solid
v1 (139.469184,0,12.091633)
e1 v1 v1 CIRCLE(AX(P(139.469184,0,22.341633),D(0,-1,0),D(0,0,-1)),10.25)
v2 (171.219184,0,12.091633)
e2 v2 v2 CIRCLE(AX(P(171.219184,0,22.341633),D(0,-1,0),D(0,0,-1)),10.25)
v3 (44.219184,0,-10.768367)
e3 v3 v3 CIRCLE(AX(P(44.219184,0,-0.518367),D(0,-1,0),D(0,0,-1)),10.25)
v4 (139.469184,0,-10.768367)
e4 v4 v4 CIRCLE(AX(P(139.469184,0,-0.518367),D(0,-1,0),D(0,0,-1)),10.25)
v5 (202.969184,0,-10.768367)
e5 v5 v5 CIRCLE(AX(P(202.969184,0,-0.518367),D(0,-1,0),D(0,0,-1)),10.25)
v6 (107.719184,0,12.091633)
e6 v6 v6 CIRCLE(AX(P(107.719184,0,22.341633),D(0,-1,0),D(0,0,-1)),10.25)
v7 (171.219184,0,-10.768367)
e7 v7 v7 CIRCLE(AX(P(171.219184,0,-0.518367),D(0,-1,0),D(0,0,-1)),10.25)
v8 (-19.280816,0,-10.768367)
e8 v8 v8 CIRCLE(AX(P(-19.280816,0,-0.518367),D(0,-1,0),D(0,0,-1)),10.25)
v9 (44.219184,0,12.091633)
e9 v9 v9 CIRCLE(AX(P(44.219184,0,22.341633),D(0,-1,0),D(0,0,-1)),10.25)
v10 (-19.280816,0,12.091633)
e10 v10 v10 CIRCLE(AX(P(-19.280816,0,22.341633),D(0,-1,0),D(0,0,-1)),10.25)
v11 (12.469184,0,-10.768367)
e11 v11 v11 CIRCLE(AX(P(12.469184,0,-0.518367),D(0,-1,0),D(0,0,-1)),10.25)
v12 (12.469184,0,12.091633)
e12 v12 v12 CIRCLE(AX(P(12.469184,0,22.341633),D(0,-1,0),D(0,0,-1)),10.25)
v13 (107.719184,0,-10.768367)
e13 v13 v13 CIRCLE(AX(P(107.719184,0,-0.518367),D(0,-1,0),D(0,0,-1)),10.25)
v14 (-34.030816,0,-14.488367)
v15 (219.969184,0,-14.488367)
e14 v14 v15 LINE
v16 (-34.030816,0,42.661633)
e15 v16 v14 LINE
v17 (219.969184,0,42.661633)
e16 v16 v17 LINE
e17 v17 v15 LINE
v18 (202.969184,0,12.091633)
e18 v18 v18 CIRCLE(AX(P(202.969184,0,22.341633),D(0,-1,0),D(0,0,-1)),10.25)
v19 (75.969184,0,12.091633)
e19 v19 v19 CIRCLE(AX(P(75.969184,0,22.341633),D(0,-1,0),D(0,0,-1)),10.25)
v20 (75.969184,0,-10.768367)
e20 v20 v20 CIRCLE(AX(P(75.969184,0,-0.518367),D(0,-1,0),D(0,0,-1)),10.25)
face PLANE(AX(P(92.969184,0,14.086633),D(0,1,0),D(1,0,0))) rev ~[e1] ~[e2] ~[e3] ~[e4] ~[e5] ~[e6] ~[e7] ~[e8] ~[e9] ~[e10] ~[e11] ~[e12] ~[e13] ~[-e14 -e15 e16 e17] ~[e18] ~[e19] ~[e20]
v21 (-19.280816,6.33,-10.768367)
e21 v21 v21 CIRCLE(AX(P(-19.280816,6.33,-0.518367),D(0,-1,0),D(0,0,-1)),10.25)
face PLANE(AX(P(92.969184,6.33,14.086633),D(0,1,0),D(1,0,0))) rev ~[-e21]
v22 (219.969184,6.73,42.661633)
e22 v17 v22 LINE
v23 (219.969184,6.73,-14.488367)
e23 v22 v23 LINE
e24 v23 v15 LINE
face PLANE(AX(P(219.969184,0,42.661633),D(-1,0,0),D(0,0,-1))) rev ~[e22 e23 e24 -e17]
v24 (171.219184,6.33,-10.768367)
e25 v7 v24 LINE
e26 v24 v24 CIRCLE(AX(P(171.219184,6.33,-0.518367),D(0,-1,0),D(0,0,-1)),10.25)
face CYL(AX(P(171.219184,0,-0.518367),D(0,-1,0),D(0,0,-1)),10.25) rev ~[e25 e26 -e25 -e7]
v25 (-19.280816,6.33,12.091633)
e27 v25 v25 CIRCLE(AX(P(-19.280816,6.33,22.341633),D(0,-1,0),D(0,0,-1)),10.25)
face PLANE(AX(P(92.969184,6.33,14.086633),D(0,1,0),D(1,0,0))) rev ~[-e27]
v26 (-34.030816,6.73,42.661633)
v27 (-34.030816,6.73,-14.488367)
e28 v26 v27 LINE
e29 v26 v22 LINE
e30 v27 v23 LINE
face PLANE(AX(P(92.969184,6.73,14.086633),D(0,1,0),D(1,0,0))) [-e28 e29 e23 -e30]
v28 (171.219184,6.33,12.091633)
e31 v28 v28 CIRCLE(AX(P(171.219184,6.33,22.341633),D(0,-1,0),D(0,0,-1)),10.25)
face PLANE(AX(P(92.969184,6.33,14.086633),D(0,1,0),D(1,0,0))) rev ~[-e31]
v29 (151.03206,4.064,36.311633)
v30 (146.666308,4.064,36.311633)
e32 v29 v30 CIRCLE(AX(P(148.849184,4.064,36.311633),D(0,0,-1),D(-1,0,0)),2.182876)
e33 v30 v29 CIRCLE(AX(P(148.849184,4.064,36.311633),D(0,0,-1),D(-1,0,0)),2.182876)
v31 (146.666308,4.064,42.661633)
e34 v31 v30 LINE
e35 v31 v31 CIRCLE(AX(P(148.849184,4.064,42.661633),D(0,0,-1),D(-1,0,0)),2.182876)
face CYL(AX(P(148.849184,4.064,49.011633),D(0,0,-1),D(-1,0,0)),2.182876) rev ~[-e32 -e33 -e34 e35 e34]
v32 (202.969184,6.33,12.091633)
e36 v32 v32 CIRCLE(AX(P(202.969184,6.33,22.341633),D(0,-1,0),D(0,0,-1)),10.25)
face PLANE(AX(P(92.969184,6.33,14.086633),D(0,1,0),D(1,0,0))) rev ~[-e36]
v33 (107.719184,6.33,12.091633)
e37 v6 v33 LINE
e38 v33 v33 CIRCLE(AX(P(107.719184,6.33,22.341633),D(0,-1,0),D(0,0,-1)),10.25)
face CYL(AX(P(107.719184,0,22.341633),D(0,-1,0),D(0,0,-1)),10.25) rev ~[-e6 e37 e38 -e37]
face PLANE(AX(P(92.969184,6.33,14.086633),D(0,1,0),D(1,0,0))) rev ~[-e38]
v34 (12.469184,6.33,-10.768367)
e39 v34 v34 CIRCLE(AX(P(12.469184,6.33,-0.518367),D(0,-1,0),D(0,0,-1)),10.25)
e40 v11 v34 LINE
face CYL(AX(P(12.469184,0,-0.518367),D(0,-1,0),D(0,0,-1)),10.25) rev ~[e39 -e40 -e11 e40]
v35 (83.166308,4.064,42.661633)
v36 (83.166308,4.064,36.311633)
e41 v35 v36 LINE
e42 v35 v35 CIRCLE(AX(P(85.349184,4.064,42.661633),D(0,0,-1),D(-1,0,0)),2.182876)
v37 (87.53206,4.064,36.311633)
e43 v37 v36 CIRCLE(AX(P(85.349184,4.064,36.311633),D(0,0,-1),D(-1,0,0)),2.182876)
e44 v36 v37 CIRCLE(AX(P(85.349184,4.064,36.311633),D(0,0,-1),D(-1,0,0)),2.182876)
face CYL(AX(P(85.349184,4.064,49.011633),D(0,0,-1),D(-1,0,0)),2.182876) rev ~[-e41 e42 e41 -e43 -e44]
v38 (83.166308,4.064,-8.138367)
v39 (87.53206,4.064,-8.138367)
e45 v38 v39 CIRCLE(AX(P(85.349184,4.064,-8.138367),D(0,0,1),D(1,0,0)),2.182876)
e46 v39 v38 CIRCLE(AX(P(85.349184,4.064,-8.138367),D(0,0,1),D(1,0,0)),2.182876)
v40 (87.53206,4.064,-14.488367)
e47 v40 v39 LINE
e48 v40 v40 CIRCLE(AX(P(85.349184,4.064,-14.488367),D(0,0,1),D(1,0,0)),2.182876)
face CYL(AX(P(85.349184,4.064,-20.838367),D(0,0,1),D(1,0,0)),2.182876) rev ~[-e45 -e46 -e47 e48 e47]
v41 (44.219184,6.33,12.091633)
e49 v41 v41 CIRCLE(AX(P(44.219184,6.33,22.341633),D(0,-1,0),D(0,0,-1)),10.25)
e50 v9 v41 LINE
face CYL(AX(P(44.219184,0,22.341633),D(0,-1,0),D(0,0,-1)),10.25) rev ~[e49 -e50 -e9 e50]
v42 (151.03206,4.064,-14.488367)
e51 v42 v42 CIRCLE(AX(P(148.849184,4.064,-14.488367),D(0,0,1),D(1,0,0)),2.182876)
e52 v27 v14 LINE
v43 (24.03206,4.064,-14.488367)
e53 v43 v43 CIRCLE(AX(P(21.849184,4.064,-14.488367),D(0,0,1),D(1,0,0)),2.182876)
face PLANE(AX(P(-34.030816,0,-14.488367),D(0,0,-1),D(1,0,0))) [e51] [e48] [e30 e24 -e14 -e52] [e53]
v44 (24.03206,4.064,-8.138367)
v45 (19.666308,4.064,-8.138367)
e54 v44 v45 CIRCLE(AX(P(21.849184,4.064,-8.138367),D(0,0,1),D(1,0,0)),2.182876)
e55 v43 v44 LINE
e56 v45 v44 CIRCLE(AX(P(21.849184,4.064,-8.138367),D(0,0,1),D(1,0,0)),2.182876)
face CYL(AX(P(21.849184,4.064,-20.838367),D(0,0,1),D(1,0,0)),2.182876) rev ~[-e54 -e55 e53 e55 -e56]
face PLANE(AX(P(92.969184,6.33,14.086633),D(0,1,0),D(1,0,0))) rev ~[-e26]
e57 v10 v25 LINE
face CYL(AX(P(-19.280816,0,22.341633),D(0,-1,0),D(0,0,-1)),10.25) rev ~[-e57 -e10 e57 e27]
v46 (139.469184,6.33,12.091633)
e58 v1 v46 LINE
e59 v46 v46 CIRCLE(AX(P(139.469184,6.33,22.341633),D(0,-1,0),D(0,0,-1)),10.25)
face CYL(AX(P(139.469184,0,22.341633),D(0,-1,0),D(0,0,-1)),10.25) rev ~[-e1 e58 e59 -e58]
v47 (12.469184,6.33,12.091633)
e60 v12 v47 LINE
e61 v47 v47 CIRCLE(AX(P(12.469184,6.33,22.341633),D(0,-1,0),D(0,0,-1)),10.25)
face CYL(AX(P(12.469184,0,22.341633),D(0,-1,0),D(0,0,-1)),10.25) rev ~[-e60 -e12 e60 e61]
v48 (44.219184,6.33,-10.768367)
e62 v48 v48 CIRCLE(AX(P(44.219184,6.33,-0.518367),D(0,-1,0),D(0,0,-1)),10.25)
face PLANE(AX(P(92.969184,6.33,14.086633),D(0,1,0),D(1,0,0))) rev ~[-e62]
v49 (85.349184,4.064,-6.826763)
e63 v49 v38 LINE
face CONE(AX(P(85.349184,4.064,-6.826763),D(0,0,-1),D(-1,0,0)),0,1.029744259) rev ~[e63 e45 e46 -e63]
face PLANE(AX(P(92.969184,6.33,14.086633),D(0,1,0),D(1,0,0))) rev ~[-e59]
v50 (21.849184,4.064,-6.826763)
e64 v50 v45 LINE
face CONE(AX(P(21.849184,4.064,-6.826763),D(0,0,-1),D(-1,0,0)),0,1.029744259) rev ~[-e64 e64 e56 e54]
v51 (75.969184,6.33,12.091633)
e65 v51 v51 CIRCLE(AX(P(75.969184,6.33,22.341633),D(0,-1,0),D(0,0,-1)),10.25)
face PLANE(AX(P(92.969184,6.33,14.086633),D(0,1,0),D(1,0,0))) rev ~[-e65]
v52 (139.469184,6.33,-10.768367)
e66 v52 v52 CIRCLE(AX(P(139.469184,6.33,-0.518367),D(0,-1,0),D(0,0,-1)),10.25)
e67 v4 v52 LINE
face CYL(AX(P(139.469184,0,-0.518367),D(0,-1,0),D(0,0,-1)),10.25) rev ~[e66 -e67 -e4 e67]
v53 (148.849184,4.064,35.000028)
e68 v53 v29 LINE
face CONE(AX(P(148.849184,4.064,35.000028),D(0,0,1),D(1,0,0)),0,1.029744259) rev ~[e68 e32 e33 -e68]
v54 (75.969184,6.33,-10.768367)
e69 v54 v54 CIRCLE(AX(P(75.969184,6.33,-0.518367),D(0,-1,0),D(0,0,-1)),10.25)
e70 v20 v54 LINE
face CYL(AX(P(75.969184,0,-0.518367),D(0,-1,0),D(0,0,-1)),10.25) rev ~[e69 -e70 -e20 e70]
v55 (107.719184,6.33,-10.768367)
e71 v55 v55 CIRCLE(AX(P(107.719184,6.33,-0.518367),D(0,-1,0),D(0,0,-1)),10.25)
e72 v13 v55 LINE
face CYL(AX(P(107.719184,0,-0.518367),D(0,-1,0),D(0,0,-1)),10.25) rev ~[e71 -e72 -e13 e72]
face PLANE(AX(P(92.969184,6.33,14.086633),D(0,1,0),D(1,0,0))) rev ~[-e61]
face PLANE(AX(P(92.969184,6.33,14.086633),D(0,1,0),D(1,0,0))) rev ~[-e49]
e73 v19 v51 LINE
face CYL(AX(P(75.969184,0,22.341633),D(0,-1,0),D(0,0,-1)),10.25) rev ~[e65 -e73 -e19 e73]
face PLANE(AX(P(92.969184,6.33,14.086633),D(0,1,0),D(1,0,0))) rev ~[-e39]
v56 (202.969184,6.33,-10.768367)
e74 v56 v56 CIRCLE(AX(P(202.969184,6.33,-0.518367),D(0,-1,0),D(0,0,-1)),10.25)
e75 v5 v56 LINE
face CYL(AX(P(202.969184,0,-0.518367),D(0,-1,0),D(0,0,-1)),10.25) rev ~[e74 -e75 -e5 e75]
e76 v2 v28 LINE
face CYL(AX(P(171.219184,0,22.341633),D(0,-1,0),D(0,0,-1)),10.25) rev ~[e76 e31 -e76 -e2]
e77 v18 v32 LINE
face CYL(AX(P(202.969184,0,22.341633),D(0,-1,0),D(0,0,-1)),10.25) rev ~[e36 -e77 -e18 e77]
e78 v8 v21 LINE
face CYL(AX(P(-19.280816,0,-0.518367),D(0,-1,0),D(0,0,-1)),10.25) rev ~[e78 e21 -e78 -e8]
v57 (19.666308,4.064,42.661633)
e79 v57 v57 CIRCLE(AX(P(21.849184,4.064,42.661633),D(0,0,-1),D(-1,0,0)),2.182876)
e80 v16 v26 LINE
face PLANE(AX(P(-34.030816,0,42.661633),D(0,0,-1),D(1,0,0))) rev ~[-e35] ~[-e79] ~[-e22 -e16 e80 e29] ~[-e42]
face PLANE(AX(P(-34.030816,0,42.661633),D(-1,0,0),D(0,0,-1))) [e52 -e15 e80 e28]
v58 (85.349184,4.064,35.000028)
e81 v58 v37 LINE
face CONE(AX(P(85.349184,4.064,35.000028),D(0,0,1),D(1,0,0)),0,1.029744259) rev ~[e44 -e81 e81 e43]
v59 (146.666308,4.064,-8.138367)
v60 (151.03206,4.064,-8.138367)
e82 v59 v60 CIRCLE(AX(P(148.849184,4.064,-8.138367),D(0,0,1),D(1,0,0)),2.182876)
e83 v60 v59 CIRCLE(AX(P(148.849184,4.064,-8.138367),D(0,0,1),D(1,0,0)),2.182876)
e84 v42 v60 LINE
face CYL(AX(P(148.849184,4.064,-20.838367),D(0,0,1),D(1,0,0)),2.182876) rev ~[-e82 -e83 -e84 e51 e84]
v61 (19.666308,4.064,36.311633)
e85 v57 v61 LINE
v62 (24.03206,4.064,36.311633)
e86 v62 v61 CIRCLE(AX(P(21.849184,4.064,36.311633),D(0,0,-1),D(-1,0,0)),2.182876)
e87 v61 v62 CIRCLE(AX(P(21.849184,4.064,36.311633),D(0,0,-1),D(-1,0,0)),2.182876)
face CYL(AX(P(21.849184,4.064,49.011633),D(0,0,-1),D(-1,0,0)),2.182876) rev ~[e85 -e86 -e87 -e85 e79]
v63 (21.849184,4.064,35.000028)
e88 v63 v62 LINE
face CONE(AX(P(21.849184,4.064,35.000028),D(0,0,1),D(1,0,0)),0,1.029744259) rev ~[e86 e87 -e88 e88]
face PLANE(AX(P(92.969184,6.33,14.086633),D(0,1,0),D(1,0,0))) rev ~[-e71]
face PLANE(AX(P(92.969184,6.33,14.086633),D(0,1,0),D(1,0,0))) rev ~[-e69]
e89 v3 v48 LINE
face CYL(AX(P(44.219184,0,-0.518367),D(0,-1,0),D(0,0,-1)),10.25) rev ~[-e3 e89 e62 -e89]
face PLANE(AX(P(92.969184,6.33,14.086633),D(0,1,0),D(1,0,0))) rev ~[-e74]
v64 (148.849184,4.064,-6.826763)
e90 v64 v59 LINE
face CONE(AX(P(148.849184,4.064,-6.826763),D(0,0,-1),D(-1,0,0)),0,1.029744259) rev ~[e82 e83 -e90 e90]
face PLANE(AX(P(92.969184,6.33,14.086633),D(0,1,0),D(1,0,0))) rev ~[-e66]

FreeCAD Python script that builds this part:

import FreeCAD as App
import Part
import Sketcher

doc = App.newDocument("Part")
body = doc.addObject("PartDesign::Body", "Body")

sketch1 = body.newObject("Sketcher::SketchObject", "Sketch")
sketch1.AttachmentSupport = (doc.getObject("XZ_Plane"), [""])
sketch1.MapMode = "FlatFace"
sketch1.addGeometry([
    Part.LineSegment(App.Vector(-34, -14, 0), App.Vector(-34, 43, 0)),
    Part.LineSegment(App.Vector(-34, 43, 0), App.Vector(220, 43, 0)),
    Part.LineSegment(App.Vector(220, 43, 0), App.Vector(220, -14, 0)),
    Part.LineSegment(App.Vector(220, -14, 0), App.Vector(-34, -14, 0)),
    Part.Circle(App.Vector(-19, 22, 0), App.Vector(0, 0, 1), 10),
    Part.Circle(App.Vector(12, 22, 0), App.Vector(0, 0, 1), 10),
    Part.Circle(App.Vector(44, 22, 0), App.Vector(0, 0, 1), 10),
    Part.Circle(App.Vector(76, 22, 0), App.Vector(0, 0, 1), 10),
    Part.Circle(App.Vector(108, 22, 0), App.Vector(0, 0, 1), 10),
    Part.Circle(App.Vector(139, 22, 0), App.Vector(0, 0, 1), 10),
    Part.Circle(App.Vector(171, 22, 0), App.Vector(0, 0, 1), 10),
    Part.Circle(App.Vector(203, 22, 0), App.Vector(0, 0, 1), 10),
    Part.Circle(App.Vector(-19, -1, 0), App.Vector(0, 0, 1), 10),
    Part.Circle(App.Vector(12, -1, 0), App.Vector(0, 0, 1), 10),
    Part.Circle(App.Vector(44, -1, 0), App.Vector(0, 0, 1), 10),
    Part.Circle(App.Vector(76, -1, 0), App.Vector(0, 0, 1), 10),
    Part.Circle(App.Vector(108, -1, 0), App.Vector(0, 0, 1), 10),
    Part.Circle(App.Vector(139, -1, 0), App.Vector(0, 0, 1), 10),
    Part.Circle(App.Vector(171, -1, 0), App.Vector(0, 0, 1), 10),
    Part.Circle(App.Vector(203, -1, 0), App.Vector(0, 0, 1), 10),
], False)
sketch1.addConstraint([
    Sketcher.Constraint("Coincident", 0, 2, 1, 1),
    Sketcher.Constraint("Coincident", 1, 2, 2, 1),
    Sketcher.Constraint("Coincident", 2, 2, 3, 1),
    Sketcher.Constraint("Coincident", 3, 2, 0, 1),
    Sketcher.Constraint("Vertical", 0),
    Sketcher.Constraint("Horizontal", 1),
    Sketcher.Constraint("Vertical", 2),
    Sketcher.Constraint("Horizontal", 3),
    Sketcher.Constraint("Equal", 4, 5),
    Sketcher.Constraint("Equal", 5, 6),
    Sketcher.Constraint("Equal", 6, 7),
    Sketcher.Constraint("Equal", 7, 8),
    Sketcher.Constraint("Equal", 8, 9),
    Sketcher.Constraint("Equal", 9, 10),
    Sketcher.Constraint("Equal", 10, 11),
    Sketcher.Constraint("Equal", 11, 12),
    Sketcher.Constraint("Equal", 12, 13),
    Sketcher.Constraint("Equal", 13, 14),
    Sketcher.Constraint("Equal", 14, 15),
    Sketcher.Constraint("Equal", 15, 16),
    Sketcher.Constraint("Equal", 16, 17),
    Sketcher.Constraint("Equal", 17, 18),
    Sketcher.Constraint("Equal", 18, 19),
    Sketcher.Constraint("Horizontal", 4, 3, 5, 3),
    Sketcher.Constraint("Horizontal", 5, 3, 6, 3),
    Sketcher.Constraint("Horizontal", 6, 3, 7, 3),
    Sketcher.Constraint("Horizontal", 7, 3, 8, 3),
    Sketcher.Constraint("Horizontal", 8, 3, 9, 3),
    Sketcher.Constraint("Horizontal", 9, 3, 10, 3),
    Sketcher.Constraint("Horizontal", 10, 3, 11, 3),
    Sketcher.Constraint("Horizontal", 12, 3, 13, 3),
    Sketcher.Constraint("Horizontal", 13, 3, 14, 3),
    Sketcher.Constraint("Horizontal", 14, 3, 15, 3),
    Sketcher.Constraint("Horizontal", 15, 3, 16, 3),
    Sketcher.Constraint("Horizontal", 16, 3, 17, 3),
    Sketcher.Constraint("Horizontal", 17, 3, 18, 3),
    Sketcher.Constraint("Horizontal", 18, 3, 19, 3),
    Sketcher.Constraint("Vertical", 4, 3, 12, 3),
    Sketcher.Constraint("Vertical", 5, 3, 13, 3),
    Sketcher.Constraint("Vertical", 6, 3, 14, 3),
    Sketcher.Constraint("Vertical", 7, 3, 15, 3),
    Sketcher.Constraint("Vertical", 8, 3, 16, 3),
    Sketcher.Constraint("Vertical", 9, 3, 17, 3),
    Sketcher.Constraint("Vertical", 10, 3, 18, 3),
    Sketcher.Constraint("Vertical", 11, 3, 19, 3),
    Sketcher.Constraint("Diameter", 4, 20.0),
    Sketcher.Constraint("DistanceX", 1, 1, 1, 2, 254.0),
    Sketcher.Constraint("DistanceX", 4, 3, 8, 3, 127.0),
    Sketcher.Constraint("DistanceX", 5, 3, 9, 3, 127.0),
    Sketcher.Constraint("DistanceX", 6, 3, 10, 3, 127.0),
    Sketcher.Constraint("DistanceX", 7, 3, 11, 3, 127.0),
    Sketcher.Constraint("DistanceX", 11, 3, 1, 2, 17.0),
    Sketcher.Constraint("DistanceY", 0, 1, 0, 2, 57.15),
    Sketcher.Constraint("DistanceX", 4, 3, 6, 3, 63.5),
    Sketcher.Constraint("DistanceX", 5, 3, 7, 3, 63.5),
    Sketcher.Constraint("DistanceX", 4, 3, 5, 3, 31.75),
    Sketcher.Constraint("DistanceY", 12, 3, 4, 3, 22.86),
    Sketcher.Constraint("DistanceY", 4, 3, 0, 2, 20.32),
    Sketcher.Constraint("DistanceX", 4, 3, -1, 1, 19.280816),
    Sketcher.Constraint("DistanceY", -1, 1, 4, 3, 22.341633),
])
pad1 = body.newObject("PartDesign::Pad", "Pad")
pad1.Profile = sketch1
pad1.Length = 6.73
pad1.Reversed = True

sketch2 = body.newObject("Sketcher::SketchObject", "Sketch001")
sketch2.AttachmentSupport = (doc.getObject("XZ_Plane"), [""])
sketch2.MapMode = "FlatFace"
sketch2.addGeometry([
    Part.Circle(App.Vector(44, 22, 0), App.Vector(0, 0, 1), 10),
    Part.Circle(App.Vector(76, 22, 0), App.Vector(0, 0, 1), 10),
    Part.Circle(App.Vector(108, 22, 0), App.Vector(0, 0, 1), 10),
    Part.Circle(App.Vector(139, 22, 0), App.Vector(0, 0, 1), 10),
    Part.Circle(App.Vector(171, 22, 0), App.Vector(0, 0, 1), 10),
    Part.Circle(App.Vector(203, 22, 0), App.Vector(0, 0, 1), 10),
    Part.Circle(App.Vector(76, -1, 0), App.Vector(0, 0, 1), 10),
    Part.Circle(App.Vector(108, -1, 0), App.Vector(0, 0, 1), 10),
    Part.Circle(App.Vector(139, -1, 0), App.Vector(0, 0, 1), 10),
    Part.Circle(App.Vector(171, -1, 0), App.Vector(0, 0, 1), 10),
    Part.Circle(App.Vector(203, -1, 0), App.Vector(0, 0, 1), 10),
    Part.Circle(App.Vector(44, -1, 0), App.Vector(0, 0, 1), 10),
    Part.Circle(App.Vector(12, 22, 0), App.Vector(0, 0, 1), 10),
    Part.Circle(App.Vector(-19, 22, 0), App.Vector(0, 0, 1), 10),
    Part.Circle(App.Vector(-19, -1, 0), App.Vector(0, 0, 1), 10),
    Part.Circle(App.Vector(12, -1, 0), App.Vector(0, 0, 1), 10),
], False)
sketch2.addConstraint([
    Sketcher.Constraint("Equal", 0, 1),
    Sketcher.Constraint("Equal", 1, 2),
    Sketcher.Constraint("Equal", 2, 3),
    Sketcher.Constraint("Equal", 3, 4),
    Sketcher.Constraint("Equal", 4, 5),
    Sketcher.Constraint("Equal", 5, 6),
    Sketcher.Constraint("Equal", 6, 7),
    Sketcher.Constraint("Equal", 7, 8),
    Sketcher.Constraint("Equal", 8, 9),
    Sketcher.Constraint("Equal", 9, 10),
    Sketcher.Constraint("Equal", 10, 11),
    Sketcher.Constraint("Equal", 11, 12),
    Sketcher.Constraint("Equal", 12, 13),
    Sketcher.Constraint("Equal", 13, 14),
    Sketcher.Constraint("Equal", 14, 15),
    Sketcher.Constraint("Horizontal", 0, 3, 1, 3),
    Sketcher.Constraint("Horizontal", 1, 3, 2, 3),
    Sketcher.Constraint("Horizontal", 2, 3, 3, 3),
    Sketcher.Constraint("Horizontal", 3, 3, 4, 3),
    Sketcher.Constraint("Horizontal", 4, 3, 5, 3),
    Sketcher.Constraint("Horizontal", 6, 3, 7, 3),
    Sketcher.Constraint("Horizontal", 7, 3, 8, 3),
    Sketcher.Constraint("Horizontal", 8, 3, 9, 3),
    Sketcher.Constraint("Horizontal", 9, 3, 10, 3),
    Sketcher.Constraint("Horizontal", 10, 3, 11, 3),
    Sketcher.Constraint("Horizontal", 5, 3, 12, 3),
    Sketcher.Constraint("Horizontal", 12, 3, 13, 3),
    Sketcher.Constraint("Horizontal", 11, 3, 14, 3),
    Sketcher.Constraint("Horizontal", 14, 3, 15, 3),
    Sketcher.Constraint("Vertical", 1, 3, 6, 3),
    Sketcher.Constraint("Vertical", 2, 3, 7, 3),
    Sketcher.Constraint("Vertical", 3, 3, 8, 3),
    Sketcher.Constraint("Vertical", 4, 3, 9, 3),
    Sketcher.Constraint("Vertical", 5, 3, 10, 3),
    Sketcher.Constraint("Vertical", 0, 3, 11, 3),
    Sketcher.Constraint("Vertical", 13, 3, 14, 3),
    Sketcher.Constraint("Vertical", 12, 3, 15, 3),
    Sketcher.Constraint("Diameter", 0, 20.5),
    Sketcher.Constraint("DistanceX", 0, 3, 4, 3, 127.0),
    Sketcher.Constraint("DistanceX", 1, 3, 5, 3, 127.0),
    Sketcher.Constraint("DistanceX", 0, 3, 2, 3, 63.5),
    Sketcher.Constraint("DistanceX", 1, 3, 3, 3, 63.5),
    Sketcher.Constraint("DistanceX", 12, 3, 1, 3, 63.5),
    Sketcher.Constraint("DistanceX", 13, 3, 0, 3, 63.5),
    Sketcher.Constraint("DistanceX", 0, 3, 1, 3, 31.75),
    Sketcher.Constraint("DistanceY", 6, 3, 1, 3, 22.86),
    Sketcher.Constraint("DistanceX", -1, 1, 0, 3, 44.219184),
    Sketcher.Constraint("DistanceY", -1, 1, 0, 3, 22.341633),
])
pocket1 = body.newObject("PartDesign::Pocket", "Pocket")
pocket1.Profile = sketch2
pocket1.Length = 7.6

sketch3 = body.newObject("Sketcher::SketchObject", "Sketch002")
sketch3.AttachmentSupport = (doc.getObject("XZ_Plane"), [""])
sketch3.MapMode = "FlatFace"
sketch3.AttachmentOffset = App.Placement(App.Vector(0, 0, -6.73), App.Rotation())
sketch3.addGeometry([
    Part.LineSegment(App.Vector(-34, -14, 0), App.Vector(-34, 43, 0)),
    Part.LineSegment(App.Vector(-34, 43, 0), App.Vector(220, 43, 0)),
    Part.LineSegment(App.Vector(220, 43, 0), App.Vector(220, -14, 0)),
    Part.LineSegment(App.Vector(220, -14, 0), App.Vector(-34, -14, 0)),
], False)
sketch3.addConstraint([
    Sketcher.Constraint("Coincident", 0, 2, 1, 1),
    Sketcher.Constraint("Coincident", 1, 2, 2, 1),
    Sketcher.Constraint("Coincident", 2, 2, 3, 1),
    Sketcher.Constraint("Coincident", 3, 2, 0, 1),
    Sketcher.Constraint("Vertical", 0),
    Sketcher.Constraint("Horizontal", 1),
    Sketcher.Constraint("Vertical", 2),
    Sketcher.Constraint("Horizontal", 3),
    Sketcher.Constraint("DistanceX", 1, 1, 1, 2, 254.0),
    Sketcher.Constraint("DistanceY", 0, 1, 0, 2, 57.15),
    Sketcher.Constraint("DistanceX", 0, 2, -1, 1, 34.030816),
    Sketcher.Constraint("DistanceY", -1, 1, 0, 2, 42.661633),
])
pad2 = body.newObject("PartDesign::Pad", "Pad001")
pad2.Profile = sketch3
pad2.Length = 0.4

sketch4 = body.newObject("Sketcher::SketchObject", "Sketch003")
sketch4.AttachmentSupport = (doc.getObject("XY_Plane"), [""])
sketch4.MapMode = "FlatFace"
sketch4.AttachmentOffset = App.Placement(App.Vector(0, 0, 42.661633), App.Rotation())
sketch4.addGeometry([
    Part.Circle(App.Vector(21.8, 4.1, 0), App.Vector(0, 0, 1), 2.2),
    Part.Circle(App.Vector(148.8, 4.1, 0), App.Vector(0, 0, 1), 2.2),
    Part.Circle(App.Vector(85.3, 4.1, 0), App.Vector(0, 0, 1), 2.2),
], False)
sketch4.addConstraint([
    Sketcher.Constraint("Equal", 0, 1),
    Sketcher.Constraint("Equal", 1, 2),
    Sketcher.Constraint("Horizontal", 0, 3, 1, 3),
    Sketcher.Constraint("Horizontal", 1, 3, 2, 3),
    Sketcher.Constraint("DistanceX", 0, 3, 1, 3, 127.0),
    Sketcher.Constraint("DistanceX", 0, 3, 2, 3, 63.5),
    Sketcher.Constraint("Diameter", 0, 4.365752),
    Sketcher.Constraint("DistanceY", -1, 1, 0, 3, 4.064),
    Sketcher.Constraint("DistanceX", -1, 1, 0, 3, 21.849184),
])
doc.recompute()
hole = body.newObject("PartDesign::Hole", "Hole")
hole.Profile = sketch4
hole.ThreadType = "None"
hole.Diameter = 4.365752
hole.DepthType = "Dimension"
hole.Depth = 6.35
hole.DrillPoint = "Angled"
hole.DrillPointAngle = 118

sketch5 = body.newObject("Sketcher::SketchObject", "Sketch004")
sketch5.AttachmentSupport = (doc.getObject("XY_Plane"), [""])
sketch5.MapMode = "FlatFace"
sketch5.AttachmentOffset = App.Placement(App.Vector(0, 0, -14.488367), App.Rotation())
sketch5.addGeometry([
    Part.Circle(App.Vector(148.8, 4.1, 0), App.Vector(0, 0, 1), 2.2),
    Part.Circle(App.Vector(85.3, 4.1, 0), App.Vector(0, 0, 1), 2.2),
    Part.Circle(App.Vector(21.8, 4.1, 0), App.Vector(0, 0, 1), 2.2),
], False)
sketch5.addConstraint([
    Sketcher.Constraint("Equal", 0, 1),
    Sketcher.Constraint("Equal", 1, 2),
    Sketcher.Constraint("Horizontal", 0, 3, 1, 3),
    Sketcher.Constraint("Horizontal", 1, 3, 2, 3),
    Sketcher.Constraint("DistanceX", 2, 3, 0, 3, 127.0),
    Sketcher.Constraint("DistanceX", 1, 3, 0, 3, 63.5),
    Sketcher.Constraint("Diameter", 0, 4.365752),
    Sketcher.Constraint("DistanceY", -1, 1, 0, 3, 4.064),
    Sketcher.Constraint("DistanceX", -1, 1, 0, 3, 148.849184),
])
doc.recompute()
hole2 = body.newObject("PartDesign::Hole", "Hole001")
hole2.Profile = sketch5
hole2.ThreadType = "None"
hole2.Diameter = 4.365752
hole2.DepthType = "Dimension"
hole2.Depth = 6.35
hole2.DrillPoint = "Angled"
hole2.DrillPointAngle = 118
hole2.Reversed = True

doc.recompute()
